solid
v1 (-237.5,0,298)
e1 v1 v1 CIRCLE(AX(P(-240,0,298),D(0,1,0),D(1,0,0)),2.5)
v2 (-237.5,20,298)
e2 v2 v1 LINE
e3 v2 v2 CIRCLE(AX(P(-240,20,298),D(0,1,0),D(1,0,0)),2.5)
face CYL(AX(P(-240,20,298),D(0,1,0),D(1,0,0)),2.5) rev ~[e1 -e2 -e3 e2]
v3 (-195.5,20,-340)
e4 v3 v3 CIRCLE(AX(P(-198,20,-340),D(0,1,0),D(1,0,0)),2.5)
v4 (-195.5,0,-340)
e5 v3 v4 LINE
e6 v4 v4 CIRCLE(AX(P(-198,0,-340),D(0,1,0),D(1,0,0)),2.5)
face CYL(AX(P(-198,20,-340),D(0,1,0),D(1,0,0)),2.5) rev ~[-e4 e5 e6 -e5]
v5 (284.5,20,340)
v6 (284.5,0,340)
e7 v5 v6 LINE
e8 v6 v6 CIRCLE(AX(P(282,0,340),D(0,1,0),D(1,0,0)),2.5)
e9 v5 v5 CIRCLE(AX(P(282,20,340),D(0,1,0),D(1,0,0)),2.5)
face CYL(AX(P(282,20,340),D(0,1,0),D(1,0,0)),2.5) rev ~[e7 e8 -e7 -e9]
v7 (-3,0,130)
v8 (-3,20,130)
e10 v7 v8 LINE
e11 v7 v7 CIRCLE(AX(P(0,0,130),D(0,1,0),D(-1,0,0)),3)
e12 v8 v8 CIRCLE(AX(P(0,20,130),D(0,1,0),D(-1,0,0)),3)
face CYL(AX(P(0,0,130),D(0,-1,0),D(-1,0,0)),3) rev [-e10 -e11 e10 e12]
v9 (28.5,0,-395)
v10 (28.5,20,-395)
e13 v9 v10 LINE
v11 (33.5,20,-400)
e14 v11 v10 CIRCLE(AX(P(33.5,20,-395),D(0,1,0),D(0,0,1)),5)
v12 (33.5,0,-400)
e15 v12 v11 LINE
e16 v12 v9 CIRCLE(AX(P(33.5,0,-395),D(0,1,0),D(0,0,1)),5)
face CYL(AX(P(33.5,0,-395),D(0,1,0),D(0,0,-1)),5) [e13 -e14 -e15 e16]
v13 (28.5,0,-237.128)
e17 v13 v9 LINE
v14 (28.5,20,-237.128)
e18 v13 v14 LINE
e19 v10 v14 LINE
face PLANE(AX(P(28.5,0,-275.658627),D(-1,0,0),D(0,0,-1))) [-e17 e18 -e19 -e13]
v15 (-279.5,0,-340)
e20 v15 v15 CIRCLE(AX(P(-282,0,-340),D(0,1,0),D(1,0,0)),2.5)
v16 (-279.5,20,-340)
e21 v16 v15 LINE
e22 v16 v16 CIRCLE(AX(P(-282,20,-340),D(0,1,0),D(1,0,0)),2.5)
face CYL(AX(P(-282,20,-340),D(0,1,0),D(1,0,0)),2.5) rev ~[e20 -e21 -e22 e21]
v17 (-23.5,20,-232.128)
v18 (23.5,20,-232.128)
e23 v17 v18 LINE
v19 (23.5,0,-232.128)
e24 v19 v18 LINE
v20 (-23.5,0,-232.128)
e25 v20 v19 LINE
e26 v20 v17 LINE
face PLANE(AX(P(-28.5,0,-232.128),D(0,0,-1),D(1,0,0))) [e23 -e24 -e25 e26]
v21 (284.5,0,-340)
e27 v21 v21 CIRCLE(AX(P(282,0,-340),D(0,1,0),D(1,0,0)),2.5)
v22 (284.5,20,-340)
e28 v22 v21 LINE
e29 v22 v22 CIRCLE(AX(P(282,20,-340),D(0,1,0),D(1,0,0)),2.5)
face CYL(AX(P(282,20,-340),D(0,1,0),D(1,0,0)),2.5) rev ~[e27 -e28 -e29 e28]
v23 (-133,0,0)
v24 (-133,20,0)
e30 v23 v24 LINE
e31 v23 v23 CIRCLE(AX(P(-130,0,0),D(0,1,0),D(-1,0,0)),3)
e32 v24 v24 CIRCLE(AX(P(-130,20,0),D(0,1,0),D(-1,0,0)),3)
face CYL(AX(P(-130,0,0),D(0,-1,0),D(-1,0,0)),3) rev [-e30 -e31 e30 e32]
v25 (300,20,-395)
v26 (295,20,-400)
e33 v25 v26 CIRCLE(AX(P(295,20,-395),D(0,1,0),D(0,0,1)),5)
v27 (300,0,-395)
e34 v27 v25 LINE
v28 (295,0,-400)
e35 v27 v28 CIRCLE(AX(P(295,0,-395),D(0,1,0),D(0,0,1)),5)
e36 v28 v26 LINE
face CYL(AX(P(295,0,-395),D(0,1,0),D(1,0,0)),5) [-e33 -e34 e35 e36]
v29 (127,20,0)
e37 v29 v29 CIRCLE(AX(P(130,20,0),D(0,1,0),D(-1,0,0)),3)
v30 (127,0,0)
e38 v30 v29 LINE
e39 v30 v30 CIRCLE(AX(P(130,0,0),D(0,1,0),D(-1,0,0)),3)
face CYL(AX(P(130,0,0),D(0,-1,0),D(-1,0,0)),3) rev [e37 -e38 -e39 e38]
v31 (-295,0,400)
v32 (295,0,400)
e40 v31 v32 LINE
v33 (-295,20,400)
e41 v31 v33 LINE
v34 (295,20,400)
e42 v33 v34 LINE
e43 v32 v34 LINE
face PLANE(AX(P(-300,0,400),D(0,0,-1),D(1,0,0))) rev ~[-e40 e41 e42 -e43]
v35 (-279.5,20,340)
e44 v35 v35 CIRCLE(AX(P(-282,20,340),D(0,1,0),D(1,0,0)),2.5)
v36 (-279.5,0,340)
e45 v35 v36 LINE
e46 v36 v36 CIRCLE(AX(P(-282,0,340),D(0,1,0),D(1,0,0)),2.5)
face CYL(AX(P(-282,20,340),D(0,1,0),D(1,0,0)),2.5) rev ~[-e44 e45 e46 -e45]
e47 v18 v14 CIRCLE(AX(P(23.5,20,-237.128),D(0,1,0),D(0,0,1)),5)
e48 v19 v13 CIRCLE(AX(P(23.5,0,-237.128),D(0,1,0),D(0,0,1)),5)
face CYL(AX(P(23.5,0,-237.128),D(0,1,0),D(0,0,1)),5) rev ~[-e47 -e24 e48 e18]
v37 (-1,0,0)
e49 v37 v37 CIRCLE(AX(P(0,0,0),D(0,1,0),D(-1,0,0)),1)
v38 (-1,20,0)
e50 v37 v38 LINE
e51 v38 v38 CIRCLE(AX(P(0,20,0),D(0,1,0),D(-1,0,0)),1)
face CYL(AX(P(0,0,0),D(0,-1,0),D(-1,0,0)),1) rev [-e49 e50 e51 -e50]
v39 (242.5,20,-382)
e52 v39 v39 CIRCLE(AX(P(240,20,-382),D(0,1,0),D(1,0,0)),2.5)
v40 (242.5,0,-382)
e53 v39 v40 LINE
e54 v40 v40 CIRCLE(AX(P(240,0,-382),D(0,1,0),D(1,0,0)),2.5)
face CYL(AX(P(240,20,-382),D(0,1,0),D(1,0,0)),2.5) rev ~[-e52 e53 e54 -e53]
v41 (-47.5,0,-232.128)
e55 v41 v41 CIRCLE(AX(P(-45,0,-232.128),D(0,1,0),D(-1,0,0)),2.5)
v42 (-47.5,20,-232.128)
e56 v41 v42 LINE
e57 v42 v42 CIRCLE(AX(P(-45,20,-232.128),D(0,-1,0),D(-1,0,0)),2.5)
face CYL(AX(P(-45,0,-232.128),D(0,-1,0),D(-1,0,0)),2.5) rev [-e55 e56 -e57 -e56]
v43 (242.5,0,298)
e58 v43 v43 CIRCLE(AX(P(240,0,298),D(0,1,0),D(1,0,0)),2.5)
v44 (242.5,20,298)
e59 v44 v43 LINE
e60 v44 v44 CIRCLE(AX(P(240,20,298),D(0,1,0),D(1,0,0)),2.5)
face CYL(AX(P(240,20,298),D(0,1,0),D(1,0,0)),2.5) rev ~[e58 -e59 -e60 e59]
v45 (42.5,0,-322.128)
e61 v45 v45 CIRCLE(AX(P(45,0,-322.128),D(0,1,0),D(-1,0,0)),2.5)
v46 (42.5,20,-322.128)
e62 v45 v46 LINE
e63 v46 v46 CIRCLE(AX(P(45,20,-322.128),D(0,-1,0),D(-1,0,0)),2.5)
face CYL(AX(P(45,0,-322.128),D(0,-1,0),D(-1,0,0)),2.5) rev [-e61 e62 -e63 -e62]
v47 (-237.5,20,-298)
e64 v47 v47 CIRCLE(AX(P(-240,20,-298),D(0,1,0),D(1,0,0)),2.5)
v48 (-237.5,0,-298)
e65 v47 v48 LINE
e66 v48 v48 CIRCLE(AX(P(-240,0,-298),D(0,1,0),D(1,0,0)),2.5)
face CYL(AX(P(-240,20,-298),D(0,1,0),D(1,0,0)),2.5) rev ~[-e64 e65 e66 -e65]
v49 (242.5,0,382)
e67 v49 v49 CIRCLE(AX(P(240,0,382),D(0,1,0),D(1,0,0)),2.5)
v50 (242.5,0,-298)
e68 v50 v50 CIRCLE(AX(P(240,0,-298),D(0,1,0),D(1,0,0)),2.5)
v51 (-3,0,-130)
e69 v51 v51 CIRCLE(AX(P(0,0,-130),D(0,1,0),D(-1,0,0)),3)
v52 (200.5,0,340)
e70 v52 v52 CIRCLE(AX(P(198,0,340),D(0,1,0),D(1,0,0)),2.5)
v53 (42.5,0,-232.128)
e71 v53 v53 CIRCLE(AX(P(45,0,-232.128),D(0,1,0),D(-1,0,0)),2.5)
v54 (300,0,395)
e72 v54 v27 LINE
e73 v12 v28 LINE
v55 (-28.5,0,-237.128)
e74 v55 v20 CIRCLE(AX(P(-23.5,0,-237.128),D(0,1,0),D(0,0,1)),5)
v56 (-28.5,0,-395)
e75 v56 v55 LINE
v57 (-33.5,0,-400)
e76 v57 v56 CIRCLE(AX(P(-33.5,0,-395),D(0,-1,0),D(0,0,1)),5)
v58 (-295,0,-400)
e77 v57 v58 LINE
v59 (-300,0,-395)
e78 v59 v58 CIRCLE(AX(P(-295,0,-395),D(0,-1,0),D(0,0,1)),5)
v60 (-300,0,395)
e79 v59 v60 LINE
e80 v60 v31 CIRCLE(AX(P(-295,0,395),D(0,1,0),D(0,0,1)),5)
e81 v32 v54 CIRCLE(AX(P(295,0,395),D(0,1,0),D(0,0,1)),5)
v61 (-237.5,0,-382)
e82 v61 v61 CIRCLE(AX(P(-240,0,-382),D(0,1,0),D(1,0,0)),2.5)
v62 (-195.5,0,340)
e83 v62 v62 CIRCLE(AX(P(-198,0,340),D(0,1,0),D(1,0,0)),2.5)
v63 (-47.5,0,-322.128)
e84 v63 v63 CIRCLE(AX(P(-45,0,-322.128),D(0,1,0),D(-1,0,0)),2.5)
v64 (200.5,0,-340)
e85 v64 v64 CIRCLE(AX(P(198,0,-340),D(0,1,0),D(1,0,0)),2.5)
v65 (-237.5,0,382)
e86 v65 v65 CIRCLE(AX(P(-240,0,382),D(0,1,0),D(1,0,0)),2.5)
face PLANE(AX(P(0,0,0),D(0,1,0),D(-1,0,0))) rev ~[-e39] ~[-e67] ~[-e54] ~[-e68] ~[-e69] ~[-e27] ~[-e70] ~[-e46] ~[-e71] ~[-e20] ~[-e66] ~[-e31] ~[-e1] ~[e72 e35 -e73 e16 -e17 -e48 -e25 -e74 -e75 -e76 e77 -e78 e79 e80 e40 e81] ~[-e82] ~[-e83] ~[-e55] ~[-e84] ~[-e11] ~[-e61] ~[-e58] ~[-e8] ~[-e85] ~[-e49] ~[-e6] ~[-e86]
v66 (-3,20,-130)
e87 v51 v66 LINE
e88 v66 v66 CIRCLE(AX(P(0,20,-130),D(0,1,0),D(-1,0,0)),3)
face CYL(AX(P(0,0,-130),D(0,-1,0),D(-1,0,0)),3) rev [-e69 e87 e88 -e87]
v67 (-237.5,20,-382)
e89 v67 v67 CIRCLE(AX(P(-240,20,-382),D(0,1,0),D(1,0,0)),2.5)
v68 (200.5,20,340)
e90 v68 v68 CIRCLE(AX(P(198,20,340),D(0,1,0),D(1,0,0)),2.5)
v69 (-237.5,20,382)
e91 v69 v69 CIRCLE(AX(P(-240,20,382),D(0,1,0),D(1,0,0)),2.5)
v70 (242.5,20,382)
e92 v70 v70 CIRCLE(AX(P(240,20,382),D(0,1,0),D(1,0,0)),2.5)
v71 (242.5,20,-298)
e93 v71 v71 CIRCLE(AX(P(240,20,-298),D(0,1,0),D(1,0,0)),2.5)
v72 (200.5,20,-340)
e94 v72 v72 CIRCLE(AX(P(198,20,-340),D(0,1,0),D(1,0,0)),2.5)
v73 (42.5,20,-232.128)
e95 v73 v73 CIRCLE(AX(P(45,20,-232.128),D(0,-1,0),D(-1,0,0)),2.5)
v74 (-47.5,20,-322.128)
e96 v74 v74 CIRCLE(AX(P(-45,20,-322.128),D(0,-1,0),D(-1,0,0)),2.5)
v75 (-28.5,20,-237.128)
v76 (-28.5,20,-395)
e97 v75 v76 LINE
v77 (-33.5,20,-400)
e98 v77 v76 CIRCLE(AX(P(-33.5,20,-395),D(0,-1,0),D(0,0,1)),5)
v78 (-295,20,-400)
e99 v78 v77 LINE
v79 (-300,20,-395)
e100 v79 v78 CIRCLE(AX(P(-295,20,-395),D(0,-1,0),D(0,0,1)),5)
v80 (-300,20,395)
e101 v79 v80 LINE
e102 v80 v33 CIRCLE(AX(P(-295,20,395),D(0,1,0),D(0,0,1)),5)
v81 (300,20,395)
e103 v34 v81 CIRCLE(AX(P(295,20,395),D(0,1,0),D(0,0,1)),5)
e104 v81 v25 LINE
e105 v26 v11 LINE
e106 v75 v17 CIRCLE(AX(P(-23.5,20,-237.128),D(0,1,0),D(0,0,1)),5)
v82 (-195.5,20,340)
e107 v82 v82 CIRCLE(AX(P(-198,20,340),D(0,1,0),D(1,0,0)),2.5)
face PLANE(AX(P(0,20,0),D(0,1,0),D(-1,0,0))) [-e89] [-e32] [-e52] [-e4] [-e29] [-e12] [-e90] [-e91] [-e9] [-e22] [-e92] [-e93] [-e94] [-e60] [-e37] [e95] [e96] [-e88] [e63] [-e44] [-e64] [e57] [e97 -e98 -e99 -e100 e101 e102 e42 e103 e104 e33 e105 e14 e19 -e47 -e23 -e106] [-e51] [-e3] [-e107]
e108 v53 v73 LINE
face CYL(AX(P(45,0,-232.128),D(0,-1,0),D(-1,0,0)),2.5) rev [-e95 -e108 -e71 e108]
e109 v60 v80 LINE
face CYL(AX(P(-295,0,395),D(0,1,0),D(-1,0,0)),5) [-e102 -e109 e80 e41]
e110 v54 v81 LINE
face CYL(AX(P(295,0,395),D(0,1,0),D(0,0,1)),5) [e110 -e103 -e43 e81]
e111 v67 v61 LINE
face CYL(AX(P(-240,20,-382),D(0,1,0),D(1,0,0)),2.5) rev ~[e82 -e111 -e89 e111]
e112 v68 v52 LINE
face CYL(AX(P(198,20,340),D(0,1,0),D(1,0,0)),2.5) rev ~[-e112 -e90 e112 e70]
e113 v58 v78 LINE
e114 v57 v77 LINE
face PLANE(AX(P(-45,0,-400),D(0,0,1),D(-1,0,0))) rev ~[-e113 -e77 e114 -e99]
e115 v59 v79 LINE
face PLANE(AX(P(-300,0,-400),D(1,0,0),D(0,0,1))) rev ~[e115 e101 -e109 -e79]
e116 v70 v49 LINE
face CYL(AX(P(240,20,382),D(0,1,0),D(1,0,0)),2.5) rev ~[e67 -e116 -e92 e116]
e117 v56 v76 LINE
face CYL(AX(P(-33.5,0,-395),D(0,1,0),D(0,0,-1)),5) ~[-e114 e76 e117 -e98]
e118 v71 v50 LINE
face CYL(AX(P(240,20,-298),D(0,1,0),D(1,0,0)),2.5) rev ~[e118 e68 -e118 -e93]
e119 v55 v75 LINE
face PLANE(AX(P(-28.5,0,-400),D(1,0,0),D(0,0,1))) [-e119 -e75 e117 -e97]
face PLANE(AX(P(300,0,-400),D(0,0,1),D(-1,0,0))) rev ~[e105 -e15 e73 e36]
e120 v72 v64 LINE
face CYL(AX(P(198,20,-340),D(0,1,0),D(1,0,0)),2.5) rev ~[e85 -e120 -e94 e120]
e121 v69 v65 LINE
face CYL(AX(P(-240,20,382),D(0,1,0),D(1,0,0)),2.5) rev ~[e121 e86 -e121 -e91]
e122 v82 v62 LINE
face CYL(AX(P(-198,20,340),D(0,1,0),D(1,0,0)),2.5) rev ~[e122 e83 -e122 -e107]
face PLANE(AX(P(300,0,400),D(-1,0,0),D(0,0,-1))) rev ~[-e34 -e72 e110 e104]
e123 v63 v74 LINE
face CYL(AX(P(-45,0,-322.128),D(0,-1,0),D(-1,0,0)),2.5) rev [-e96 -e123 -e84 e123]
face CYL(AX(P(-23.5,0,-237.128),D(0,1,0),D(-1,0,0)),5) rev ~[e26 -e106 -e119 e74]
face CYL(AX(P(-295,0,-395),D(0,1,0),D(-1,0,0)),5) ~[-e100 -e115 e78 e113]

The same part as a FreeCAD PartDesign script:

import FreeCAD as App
import Part
import Sketcher
from FreeCAD import Vector


def edges_at(feature, points):
    """Names of the edges that pass closest to the given points."""
    edges = feature.Shape.Edges
    near = lambda p: min(range(len(edges)), key=lambda i: edges[i].distToShape(Part.Vertex(*p))[0])
    return sorted({f"Edge{near(p) + 1}" for p in points})


def add_polygon(sketch, points):
    """Adds a closed chain of lines whose ends are joined by coincident constraints."""
    first, n = sketch.GeometryCount, len(points)
    for a, b in zip(points, points[1:] + points[:1]):
        sketch.addGeometry(Part.LineSegment(App.Vector(*a, 0), App.Vector(*b, 0)), False)
    for i in range(n):
        sketch.addConstraint(Sketcher.Constraint("Coincident", first + i, 2, first + (i + 1) % n, 1))

doc = App.newDocument("Part")
body = doc.addObject("PartDesign::Body", "Body")

sketch1 = body.newObject("Sketcher::SketchObject", "Sketch")
sketch1.AttachmentSupport = (doc.getObject("XZ_Plane"), [""])
sketch1.MapMode = "FlatFace"
add_polygon(sketch1, [(-300, -400), (-300, 400), (300, 400), (300, -400), (28.5, -400), (28.5, -232.1), (-28.5, -232.1), (-28.5, -400)])
sketch1.addGeometry(Part.Circle(Vector(-45, -322.1, 0), Vector(0, 0, 1), 2.5), False)
sketch1.addGeometry(Part.Circle(Vector(45, -322.1, 0), Vector(0, 0, 1), 2.5), False)
sketch1.addGeometry(Part.Circle(Vector(-130, 0, 0), Vector(0, 0, 1), 3), False)
sketch1.addGeometry(Part.Circle(Vector(0, 130, 0), Vector(0, 0, 1), 3), False)
sketch1.addGeometry(Part.Circle(Vector(-45, -232.1, 0), Vector(0, 0, 1), 2.5), False)
sketch1.addGeometry(Part.Circle(Vector(45, -232.1, 0), Vector(0, 0, 1), 2.5), False)
sketch1.addGeometry(Part.Circle(Vector(0, -130, 0), Vector(0, 0, 1), 3), False)
sketch1.addGeometry(Part.Circle(Vector(130, 0, 0), Vector(0, 0, 1), 3), False)
sketch1.addGeometry(Part.Circle(Vector(0, 0, 0), Vector(0, 0, 1), 1), False)
sketch1.addConstraint([
    Sketcher.Constraint("Vertical", 0),
    Sketcher.Constraint("Horizontal", 1),
    Sketcher.Constraint("Vertical", 2),
    Sketcher.Constraint("Horizontal", 3),
    Sketcher.Constraint("Vertical", 4),
    Sketcher.Constraint("Horizontal", 5),
    Sketcher.Constraint("Vertical", 6),
    Sketcher.Constraint("Horizontal", 7),
    Sketcher.Constraint("Coincident", 16, 3, -1, 1),
    Sketcher.Constraint("Equal", 8, 9),
    Sketcher.Constraint("Equal", 10, 11),
    Sketcher.Constraint("Equal", 9, 12),
    Sketcher.Constraint("Equal", 12, 13),
    Sketcher.Constraint("Equal", 11, 14),
    Sketcher.Constraint("Equal", 14, 15),
    Sketcher.Constraint("Symmetric", 11, 3, 14, 3, -1, 1),
    Sketcher.Constraint("Symmetric", 10, 3, 15, 3, -1, 1),
    Sketcher.Constraint("Symmetric", 0, 2, 2, 2, -1, 1),
    Sketcher.Constraint("Symmetric", 8, 3, 9, 3, -2),
    Sketcher.Constraint("Symmetric", 12, 3, 13, 3, -2),
    Sketcher.Constraint("Symmetric", 3, 2, 6, 2, -2),
    Sketcher.Constraint("PointOnObject", 10, 3, -1),
    Sketcher.Constraint("PointOnObject", 11, 3, -2),
    Sketcher.Constraint("Horizontal", 13, 3, 4, 2),
    Sketcher.Constraint("Vertical", 8, 3, 12, 3),
    Sketcher.Constraint("Diameter", 8, 5.0),
    Sketcher.Constraint("Diameter", 10, 6.0),
    Sketcher.Constraint("Diameter", 16, 2.0),
    Sketcher.Constraint("DistanceX", 1, 1, 1, 2, 600.0),
    Sketcher.Constraint("DistanceX", 5, 2, 5, 1, 57.0),
    Sketcher.Constraint("DistanceY", 0, 1, 0, 2, 800.0),
    Sketcher.Constraint("DistanceX", 10, 3, -1, 1, 130.0),
    Sketcher.Constraint("DistanceY", -1, 1, 11, 3, 130.0),
    Sketcher.Constraint("DistanceX", 8, 3, 9, 3, 90.0),
    Sketcher.Constraint("DistanceY", 8, 3, 12, 3, 90.0),
    Sketcher.Constraint("DistanceY", 4, 1, 4, 2, 167.872),
])
pad1 = body.newObject("PartDesign::Pad", "Pad")
pad1.Profile = sketch1
pad1.Length = 20
pad1.Reversed = True

sketch2 = body.newObject("Sketcher::SketchObject", "Sketch001")
sketch2.AttachmentSupport = (doc.getObject("XZ_Plane"), [""])
sketch2.MapMode = "FlatFace"
sketch2.AttachmentOffset = App.Placement(Vector(0, 0, -20), App.Rotation())
sketch2.addGeometry([
    Part.Circle(Vector(-282, 340, 0), Vector(0, 0, 1), 2.5),
    Part.Circle(Vector(-240, 382, 0), Vector(0, 0, 1), 2.5),
    Part.Circle(Vector(-198, 340, 0), Vector(0, 0, 1), 2.5),
    Part.Circle(Vector(-240, 298, 0), Vector(0, 0, 1), 2.5),
    Part.Circle(Vector(-240, -382, 0), Vector(0, 0, 1), 2.5),
    Part.Circle(Vector(-198, -340, 0), Vector(0, 0, 1), 2.5),
    Part.Circle(Vector(-282, -340, 0), Vector(0, 0, 1), 2.5),
    Part.Circle(Vector(-240, -298, 0), Vector(0, 0, 1), 2.5),
    Part.Circle(Vector(240, 298, 0), Vector(0, 0, 1), 2.5),
    Part.Circle(Vector(282, 340, 0), Vector(0, 0, 1), 2.5),
    Part.Circle(Vector(198, 340, 0), Vector(0, 0, 1), 2.5),
    Part.Circle(Vector(240, 382, 0), Vector(0, 0, 1), 2.5),
    Part.Circle(Vector(240, -382, 0), Vector(0, 0, 1), 2.5),
    Part.Circle(Vector(282, -340, 0), Vector(0, 0, 1), 2.5),
    Part.Circle(Vector(198, -340, 0), Vector(0, 0, 1), 2.5),
    Part.Circle(Vector(240, -298, 0), Vector(0, 0, 1), 2.5),
], False)
sketch2.addConstraint([
    Sketcher.Constraint("Equal", 0, 1),
    Sketcher.Constraint("Equal", 1, 2),
    Sketcher.Constraint("Equal", 2, 3),
    Sketcher.Constraint("Equal", 3, 4),
    Sketcher.Constraint("Equal", 4, 5),
    Sketcher.Constraint("Equal", 5, 6),
    Sketcher.Constraint("Equal", 6, 7),
    Sketcher.Constraint("Equal", 7, 8),
    Sketcher.Constraint("Equal", 8, 9),
    Sketcher.Constraint("Equal", 9, 10),
    Sketcher.Constraint("Equal", 10, 11),
    Sketcher.Constraint("Equal", 11, 12),
    Sketcher.Constraint("Equal", 12, 13),
    Sketcher.Constraint("Equal", 13, 14),
    Sketcher.Constraint("Equal", 14, 15),
    Sketcher.Constraint("Symmetric", 7, 3, 8, 3, -1, 1),
    Sketcher.Constraint("Symmetric", 6, 3, 9, 3, -1, 1),
    Sketcher.Constraint("Symmetric", 5, 3, 10, 3, -1, 1),
    Sketcher.Constraint("Symmetric", 4, 3, 11, 3, -1, 1),
    Sketcher.Constraint("Symmetric", 1, 3, 12, 3, -1, 1),
    Sketcher.Constraint("Symmetric", 0, 3, 13, 3, -1, 1),
    Sketcher.Constraint("Symmetric", 2, 3, 14, 3, -1, 1),
    Sketcher.Constraint("Symmetric", 3, 3, 15, 3, -1, 1),
    Sketcher.Constraint("Symmetric", 3, 3, 8, 3, -2),
    Sketcher.Constraint("Symmetric", 0, 3, 9, 3, -2),
    Sketcher.Constraint("Symmetric", 2, 3, 10, 3, -2),
    Sketcher.Constraint("Symmetric", 1, 3, 11, 3, -2),
    Sketcher.Constraint("Horizontal", 0, 3, 2, 3),
    Sketcher.Constraint("Vertical", 1, 3, 3, 3),
    Sketcher.Constraint("Diameter", 0, 5.0),
    Sketcher.Constraint("DistanceX", 0, 3, 1, 3, 42.0),
    Sketcher.Constraint("DistanceY", 0, 3, 1, 3, 42.0),
    Sketcher.Constraint("DistanceX", 1, 3, 2, 3, 42.0),
    Sketcher.Constraint("DistanceY", 3, 3, 0, 3, 42.0),
    Sketcher.Constraint("DistanceY", 4, 3, 3, 3, 680.0),
    Sketcher.Constraint("DistanceX", 3, 3, 8, 3, 480.0),
])
pocket1 = body.newObject("PartDesign::Pocket", "Pocket")
pocket1.Profile = sketch2
pocket1.Type = "ThroughAll"
pocket1.Reversed = True
doc.recompute()

fillet = body.newObject("PartDesign::Fillet", "Fillet")
fillet.Base = (pocket1, edges_at(pocket1, [
    (300, 10, 400),
    (300, 10, -400),
    (-28.5, 10, -400),
    (28.5, 10, -400),
    (-28.5, 10, -232.128),
    (28.5, 10, -232.128),
    (-300, 10, -400),
    (-300, 10, 400),
]))
fillet.Radius = 5

doc.recompute()
